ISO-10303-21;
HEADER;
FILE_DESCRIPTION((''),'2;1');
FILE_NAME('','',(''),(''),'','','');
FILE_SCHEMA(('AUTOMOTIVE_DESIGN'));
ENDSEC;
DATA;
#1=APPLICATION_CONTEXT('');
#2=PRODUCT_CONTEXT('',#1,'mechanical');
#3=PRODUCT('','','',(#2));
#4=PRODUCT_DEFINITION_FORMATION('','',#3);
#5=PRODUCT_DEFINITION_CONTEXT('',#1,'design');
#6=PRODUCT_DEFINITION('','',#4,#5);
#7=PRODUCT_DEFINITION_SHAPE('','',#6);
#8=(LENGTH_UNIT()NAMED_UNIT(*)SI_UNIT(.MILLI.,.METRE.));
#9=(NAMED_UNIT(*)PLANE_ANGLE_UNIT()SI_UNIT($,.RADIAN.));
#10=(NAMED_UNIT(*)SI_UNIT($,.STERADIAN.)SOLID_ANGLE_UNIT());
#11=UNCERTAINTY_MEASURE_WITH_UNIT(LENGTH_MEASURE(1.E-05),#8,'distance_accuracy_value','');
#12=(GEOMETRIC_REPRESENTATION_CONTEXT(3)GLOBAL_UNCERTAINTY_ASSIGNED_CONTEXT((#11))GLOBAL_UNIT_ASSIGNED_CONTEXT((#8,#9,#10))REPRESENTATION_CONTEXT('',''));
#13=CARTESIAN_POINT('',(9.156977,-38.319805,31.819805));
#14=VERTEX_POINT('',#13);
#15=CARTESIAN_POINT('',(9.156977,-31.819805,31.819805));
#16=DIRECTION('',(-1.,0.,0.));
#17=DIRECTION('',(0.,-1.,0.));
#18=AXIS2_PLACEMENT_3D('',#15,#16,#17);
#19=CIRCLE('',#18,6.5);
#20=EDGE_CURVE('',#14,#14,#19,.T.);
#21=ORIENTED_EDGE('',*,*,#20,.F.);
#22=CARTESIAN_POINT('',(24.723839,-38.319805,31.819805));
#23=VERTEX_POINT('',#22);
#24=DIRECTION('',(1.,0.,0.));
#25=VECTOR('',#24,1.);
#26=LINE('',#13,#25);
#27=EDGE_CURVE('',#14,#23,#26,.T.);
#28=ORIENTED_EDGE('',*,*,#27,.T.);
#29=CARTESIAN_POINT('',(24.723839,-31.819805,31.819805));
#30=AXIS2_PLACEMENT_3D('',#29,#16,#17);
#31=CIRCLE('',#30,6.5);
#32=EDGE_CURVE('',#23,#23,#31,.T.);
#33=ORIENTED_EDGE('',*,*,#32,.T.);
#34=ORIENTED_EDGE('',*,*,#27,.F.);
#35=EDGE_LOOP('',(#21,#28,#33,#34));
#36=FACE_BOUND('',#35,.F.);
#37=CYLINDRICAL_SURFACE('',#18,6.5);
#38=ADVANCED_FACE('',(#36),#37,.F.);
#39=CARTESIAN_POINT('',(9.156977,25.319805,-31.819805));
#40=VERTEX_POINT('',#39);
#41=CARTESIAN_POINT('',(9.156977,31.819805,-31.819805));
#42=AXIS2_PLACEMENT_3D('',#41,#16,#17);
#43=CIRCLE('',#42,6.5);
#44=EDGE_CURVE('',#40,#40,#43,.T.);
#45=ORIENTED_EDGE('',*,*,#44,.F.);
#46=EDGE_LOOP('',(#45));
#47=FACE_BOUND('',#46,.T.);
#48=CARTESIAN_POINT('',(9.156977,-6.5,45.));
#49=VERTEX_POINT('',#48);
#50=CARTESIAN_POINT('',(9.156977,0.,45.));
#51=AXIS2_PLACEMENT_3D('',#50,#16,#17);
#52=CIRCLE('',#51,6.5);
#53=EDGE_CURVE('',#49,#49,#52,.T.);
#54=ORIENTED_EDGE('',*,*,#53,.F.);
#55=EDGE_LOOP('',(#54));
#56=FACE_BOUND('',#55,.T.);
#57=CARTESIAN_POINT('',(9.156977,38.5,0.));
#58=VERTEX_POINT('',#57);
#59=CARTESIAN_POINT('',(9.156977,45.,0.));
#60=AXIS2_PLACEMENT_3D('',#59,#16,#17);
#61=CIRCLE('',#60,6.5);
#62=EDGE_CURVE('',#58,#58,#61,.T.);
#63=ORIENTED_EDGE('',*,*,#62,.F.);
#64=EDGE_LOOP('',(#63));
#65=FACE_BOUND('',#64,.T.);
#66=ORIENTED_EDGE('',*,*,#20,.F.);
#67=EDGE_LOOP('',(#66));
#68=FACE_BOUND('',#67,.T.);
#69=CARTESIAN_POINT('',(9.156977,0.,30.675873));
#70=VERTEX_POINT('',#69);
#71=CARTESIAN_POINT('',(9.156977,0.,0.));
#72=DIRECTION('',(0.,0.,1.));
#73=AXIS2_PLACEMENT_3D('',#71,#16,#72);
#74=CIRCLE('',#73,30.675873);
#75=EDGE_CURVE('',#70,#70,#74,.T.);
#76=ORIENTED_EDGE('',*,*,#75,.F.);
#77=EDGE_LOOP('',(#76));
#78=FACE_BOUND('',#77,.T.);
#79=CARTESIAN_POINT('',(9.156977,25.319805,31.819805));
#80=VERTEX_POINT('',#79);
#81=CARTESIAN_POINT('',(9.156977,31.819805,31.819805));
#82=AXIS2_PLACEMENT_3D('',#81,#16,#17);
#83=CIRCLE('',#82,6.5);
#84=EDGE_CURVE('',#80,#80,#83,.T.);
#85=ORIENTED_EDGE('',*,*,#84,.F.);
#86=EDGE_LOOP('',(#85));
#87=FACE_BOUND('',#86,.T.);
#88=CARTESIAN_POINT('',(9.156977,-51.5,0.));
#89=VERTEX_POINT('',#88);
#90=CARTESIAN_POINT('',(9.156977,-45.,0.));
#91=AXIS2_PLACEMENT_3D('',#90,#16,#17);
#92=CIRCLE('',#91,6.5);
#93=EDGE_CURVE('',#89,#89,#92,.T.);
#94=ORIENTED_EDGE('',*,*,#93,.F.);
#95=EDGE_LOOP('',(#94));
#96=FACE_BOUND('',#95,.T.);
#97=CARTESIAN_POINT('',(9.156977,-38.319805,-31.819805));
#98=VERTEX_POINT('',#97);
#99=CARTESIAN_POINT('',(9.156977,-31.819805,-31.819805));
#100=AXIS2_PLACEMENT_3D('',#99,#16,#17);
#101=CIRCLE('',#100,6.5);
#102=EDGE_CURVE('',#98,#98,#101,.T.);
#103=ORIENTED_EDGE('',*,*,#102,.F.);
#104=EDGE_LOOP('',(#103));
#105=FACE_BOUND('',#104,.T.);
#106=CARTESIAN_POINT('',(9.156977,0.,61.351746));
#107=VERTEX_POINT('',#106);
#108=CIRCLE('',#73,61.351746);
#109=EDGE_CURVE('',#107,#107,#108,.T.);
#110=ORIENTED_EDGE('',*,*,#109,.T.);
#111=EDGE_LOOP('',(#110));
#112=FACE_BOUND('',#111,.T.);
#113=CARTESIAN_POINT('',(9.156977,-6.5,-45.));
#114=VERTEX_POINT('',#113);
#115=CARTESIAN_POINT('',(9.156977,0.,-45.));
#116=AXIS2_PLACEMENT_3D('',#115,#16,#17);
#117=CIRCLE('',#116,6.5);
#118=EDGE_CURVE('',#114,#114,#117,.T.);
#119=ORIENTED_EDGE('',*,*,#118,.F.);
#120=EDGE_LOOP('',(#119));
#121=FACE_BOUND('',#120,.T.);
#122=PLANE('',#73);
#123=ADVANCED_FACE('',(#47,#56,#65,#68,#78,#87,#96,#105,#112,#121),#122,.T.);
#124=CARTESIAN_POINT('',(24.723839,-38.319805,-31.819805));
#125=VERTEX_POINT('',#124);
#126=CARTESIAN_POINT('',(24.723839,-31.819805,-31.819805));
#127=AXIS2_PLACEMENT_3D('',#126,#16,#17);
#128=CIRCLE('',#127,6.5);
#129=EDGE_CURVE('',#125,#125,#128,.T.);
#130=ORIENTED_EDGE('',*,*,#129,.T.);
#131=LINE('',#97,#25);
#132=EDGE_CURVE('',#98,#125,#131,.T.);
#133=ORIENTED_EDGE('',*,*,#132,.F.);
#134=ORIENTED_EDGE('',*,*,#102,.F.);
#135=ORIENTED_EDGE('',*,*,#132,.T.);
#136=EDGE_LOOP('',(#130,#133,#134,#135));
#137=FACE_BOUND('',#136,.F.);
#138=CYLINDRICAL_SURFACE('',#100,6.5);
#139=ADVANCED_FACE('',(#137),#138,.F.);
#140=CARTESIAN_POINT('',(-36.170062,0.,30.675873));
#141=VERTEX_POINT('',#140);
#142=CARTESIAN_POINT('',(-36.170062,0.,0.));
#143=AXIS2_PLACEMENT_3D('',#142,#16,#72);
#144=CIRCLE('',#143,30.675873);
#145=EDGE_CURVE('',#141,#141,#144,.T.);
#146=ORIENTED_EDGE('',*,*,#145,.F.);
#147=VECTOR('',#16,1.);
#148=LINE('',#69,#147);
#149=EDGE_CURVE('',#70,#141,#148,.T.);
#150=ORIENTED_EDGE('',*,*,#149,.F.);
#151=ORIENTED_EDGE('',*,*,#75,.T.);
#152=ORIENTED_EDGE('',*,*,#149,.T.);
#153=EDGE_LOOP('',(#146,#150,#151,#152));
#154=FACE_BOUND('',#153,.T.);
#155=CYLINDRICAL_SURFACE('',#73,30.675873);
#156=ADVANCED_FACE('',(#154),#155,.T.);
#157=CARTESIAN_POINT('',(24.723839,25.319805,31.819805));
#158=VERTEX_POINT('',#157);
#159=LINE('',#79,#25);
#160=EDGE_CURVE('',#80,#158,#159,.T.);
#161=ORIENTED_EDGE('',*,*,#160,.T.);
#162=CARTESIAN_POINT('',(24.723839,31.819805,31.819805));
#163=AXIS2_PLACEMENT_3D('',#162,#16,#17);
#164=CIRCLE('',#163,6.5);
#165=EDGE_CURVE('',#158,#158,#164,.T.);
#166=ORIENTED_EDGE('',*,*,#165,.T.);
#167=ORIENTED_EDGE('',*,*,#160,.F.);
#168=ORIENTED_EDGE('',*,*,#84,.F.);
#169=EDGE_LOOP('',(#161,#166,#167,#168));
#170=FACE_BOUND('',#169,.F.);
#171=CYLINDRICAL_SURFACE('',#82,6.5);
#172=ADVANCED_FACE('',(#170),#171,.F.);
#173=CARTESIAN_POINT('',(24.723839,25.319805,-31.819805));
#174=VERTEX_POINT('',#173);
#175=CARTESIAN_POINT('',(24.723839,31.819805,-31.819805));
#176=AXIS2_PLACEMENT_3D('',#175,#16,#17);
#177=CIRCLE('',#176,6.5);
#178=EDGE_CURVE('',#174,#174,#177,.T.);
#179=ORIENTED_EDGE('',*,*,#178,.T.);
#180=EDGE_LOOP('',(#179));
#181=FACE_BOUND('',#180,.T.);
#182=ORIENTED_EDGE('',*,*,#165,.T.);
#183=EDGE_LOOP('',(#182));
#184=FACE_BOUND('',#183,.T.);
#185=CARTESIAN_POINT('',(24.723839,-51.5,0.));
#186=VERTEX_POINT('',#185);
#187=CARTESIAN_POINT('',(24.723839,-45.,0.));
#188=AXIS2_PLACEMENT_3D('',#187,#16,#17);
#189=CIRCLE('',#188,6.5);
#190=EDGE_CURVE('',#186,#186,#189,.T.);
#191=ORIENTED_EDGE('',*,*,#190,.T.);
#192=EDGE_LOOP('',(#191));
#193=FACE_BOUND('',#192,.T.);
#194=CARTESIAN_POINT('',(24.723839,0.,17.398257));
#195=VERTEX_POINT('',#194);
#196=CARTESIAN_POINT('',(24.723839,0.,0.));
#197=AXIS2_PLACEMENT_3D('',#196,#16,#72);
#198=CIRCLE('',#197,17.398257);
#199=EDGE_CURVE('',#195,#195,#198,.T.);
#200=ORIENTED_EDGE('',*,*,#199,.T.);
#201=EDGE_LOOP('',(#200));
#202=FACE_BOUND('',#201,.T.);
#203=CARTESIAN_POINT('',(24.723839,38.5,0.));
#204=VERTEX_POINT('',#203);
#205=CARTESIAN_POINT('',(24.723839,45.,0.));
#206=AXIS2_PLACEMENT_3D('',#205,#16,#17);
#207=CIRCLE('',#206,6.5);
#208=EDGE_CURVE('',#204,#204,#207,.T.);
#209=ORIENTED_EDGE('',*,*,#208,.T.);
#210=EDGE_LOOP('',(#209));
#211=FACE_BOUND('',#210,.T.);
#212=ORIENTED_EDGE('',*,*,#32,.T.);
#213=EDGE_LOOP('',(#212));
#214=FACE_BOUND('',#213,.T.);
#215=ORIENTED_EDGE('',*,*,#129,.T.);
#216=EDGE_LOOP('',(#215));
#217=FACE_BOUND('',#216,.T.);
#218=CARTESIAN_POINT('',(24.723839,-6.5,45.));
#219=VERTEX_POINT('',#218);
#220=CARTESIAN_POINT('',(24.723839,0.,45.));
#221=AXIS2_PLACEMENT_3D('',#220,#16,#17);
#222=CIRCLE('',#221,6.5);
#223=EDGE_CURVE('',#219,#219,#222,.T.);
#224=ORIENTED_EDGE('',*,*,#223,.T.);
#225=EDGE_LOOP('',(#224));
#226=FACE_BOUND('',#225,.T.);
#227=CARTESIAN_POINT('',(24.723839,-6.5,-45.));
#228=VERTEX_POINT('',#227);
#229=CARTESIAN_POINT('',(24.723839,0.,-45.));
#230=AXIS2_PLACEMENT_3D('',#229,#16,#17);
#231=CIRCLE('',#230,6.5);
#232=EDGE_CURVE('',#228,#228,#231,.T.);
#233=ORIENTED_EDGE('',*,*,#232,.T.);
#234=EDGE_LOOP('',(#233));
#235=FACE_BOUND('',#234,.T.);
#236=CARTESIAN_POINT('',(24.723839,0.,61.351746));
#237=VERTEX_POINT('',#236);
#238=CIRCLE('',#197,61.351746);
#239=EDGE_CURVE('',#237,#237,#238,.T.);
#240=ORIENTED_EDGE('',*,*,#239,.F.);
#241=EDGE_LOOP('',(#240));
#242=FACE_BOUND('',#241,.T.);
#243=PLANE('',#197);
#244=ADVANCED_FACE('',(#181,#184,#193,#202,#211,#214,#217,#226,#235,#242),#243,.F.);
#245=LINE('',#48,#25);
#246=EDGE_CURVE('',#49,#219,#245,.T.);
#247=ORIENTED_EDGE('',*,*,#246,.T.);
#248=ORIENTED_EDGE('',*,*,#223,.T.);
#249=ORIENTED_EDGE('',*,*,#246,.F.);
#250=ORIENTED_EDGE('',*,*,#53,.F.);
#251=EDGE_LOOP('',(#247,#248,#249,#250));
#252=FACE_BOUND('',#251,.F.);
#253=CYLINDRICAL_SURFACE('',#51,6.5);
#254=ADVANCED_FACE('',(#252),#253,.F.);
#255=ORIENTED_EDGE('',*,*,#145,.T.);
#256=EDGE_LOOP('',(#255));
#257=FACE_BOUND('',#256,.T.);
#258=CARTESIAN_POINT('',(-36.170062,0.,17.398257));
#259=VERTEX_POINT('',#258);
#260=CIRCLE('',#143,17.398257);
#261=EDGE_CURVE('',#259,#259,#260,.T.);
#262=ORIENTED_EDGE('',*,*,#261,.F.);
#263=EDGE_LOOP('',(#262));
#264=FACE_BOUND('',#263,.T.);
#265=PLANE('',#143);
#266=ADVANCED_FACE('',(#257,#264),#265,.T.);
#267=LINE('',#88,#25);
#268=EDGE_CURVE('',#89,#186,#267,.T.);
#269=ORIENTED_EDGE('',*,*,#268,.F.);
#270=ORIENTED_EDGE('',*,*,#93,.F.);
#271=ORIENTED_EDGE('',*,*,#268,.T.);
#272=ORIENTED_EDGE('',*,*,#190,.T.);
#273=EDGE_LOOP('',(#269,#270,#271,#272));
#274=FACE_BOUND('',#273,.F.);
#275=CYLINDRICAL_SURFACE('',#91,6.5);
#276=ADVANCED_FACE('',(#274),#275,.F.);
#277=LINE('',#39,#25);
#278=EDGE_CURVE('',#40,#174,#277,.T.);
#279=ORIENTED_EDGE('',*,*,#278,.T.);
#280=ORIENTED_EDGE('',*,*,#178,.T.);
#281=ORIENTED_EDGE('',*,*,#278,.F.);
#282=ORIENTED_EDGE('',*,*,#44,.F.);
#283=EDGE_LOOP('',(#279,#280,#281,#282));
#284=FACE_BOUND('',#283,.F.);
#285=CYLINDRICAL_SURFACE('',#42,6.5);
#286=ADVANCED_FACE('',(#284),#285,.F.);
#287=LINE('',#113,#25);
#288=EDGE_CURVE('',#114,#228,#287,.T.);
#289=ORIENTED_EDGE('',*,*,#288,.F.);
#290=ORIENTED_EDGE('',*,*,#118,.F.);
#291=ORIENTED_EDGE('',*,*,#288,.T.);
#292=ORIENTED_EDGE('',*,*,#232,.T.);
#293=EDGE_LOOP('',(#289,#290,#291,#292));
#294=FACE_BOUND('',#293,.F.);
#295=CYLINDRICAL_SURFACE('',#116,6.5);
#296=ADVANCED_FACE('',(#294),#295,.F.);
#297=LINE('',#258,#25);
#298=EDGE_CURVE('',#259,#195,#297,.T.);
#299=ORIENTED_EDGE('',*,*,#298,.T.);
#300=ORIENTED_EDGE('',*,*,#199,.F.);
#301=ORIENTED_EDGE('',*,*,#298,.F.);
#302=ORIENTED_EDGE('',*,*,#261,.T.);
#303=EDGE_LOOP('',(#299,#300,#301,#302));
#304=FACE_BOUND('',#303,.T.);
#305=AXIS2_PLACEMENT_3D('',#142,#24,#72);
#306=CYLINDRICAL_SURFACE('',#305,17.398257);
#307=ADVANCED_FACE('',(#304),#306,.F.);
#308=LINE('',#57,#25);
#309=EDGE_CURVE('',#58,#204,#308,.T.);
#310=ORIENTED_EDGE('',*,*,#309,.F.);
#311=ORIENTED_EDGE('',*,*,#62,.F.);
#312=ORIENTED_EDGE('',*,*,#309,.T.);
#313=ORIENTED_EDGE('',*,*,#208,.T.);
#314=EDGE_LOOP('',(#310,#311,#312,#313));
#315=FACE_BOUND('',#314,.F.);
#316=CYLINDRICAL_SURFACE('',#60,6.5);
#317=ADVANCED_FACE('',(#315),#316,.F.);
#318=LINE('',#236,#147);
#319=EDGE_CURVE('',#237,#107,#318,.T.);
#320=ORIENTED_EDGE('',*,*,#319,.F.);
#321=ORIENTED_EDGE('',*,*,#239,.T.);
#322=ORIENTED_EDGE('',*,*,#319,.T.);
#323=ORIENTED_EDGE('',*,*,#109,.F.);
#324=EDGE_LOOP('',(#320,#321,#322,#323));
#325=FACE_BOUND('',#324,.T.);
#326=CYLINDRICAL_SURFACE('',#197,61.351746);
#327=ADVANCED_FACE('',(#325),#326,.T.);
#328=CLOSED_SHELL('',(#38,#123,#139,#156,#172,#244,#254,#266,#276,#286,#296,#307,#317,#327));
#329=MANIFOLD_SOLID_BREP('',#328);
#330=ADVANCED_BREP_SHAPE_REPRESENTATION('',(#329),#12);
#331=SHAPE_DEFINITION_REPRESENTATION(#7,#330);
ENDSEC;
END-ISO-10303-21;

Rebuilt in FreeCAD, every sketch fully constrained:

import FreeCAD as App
import Part
import Sketcher
Q = App.Units.Quantity

doc = App.newDocument("Part")
body = doc.addObject("PartDesign::Body", "Body")

sketch1 = body.newObject("Sketcher::SketchObject", "Sketch")
sketch1.AttachmentSupport = (doc.getObject("XZ_Plane"), [""])
sketch1.MapMode = "FlatFace"
sketch1.addGeometry(Part.LineSegment(App.Vector(-36, 17, 0), App.Vector(25, 17, 0)), False)
sketch1.addGeometry(Part.LineSegment(App.Vector(25, 17, 0), App.Vector(25, 61, 0)), False)
sketch1.addGeometry(Part.LineSegment(App.Vector(25, 61, 0), App.Vector(9, 61, 0)), False)
sketch1.addGeometry(Part.LineSegment(App.Vector(9, 61, 0), App.Vector(9, 31, 0)), False)
sketch1.addGeometry(Part.LineSegment(App.Vector(9, 31, 0), App.Vector(-36, 31, 0)), False)
sketch1.addGeometry(Part.LineSegment(App.Vector(-36, 31, 0), App.Vector(-36, 17, 0)), False)
sketch1.addConstraint(Sketcher.Constraint("Coincident", 0, 2, 1, 1))
sketch1.addConstraint(Sketcher.Constraint("Coincident", 1, 2, 2, 1))
sketch1.addConstraint(Sketcher.Constraint("Coincident", 2, 2, 3, 1))
sketch1.addConstraint(Sketcher.Constraint("Coincident", 3, 2, 4, 1))
sketch1.addConstraint(Sketcher.Constraint("Coincident", 4, 2, 5, 1))
sketch1.addConstraint(Sketcher.Constraint("Coincident", 5, 2, 0, 1))
sketch1.addConstraint(Sketcher.Constraint("Horizontal", 0))
sketch1.addConstraint(Sketcher.Constraint("Vertical", 1))
sketch1.addConstraint(Sketcher.Constraint("Horizontal", 2))
sketch1.addConstraint(Sketcher.Constraint("Vertical", 3))
sketch1.addConstraint(Sketcher.Constraint("Horizontal", 4))
sketch1.addConstraint(Sketcher.Constraint("Vertical", 5))
sketch1.addConstraint(Sketcher.Constraint("DistanceX", 0, 1, 0, 2, Q("60.893901 mm")))
sketch1.addConstraint(Sketcher.Constraint("DistanceX", 4, 2, 4, 1, Q("45.327039 mm")))
sketch1.addConstraint(Sketcher.Constraint("DistanceY", 1, 1, 1, 2, Q("43.953489 mm")))
sketch1.addConstraint(Sketcher.Constraint("DistanceY", 3, 2, 3, 1, Q("30.675873 mm")))
sketch1.addConstraint(Sketcher.Constraint("DistanceX", -1, 1, 0, 2, Q("24.723839 mm")))
sketch1.addConstraint(Sketcher.Constraint("DistanceY", -1, 1, 0, 2, Q("17.398257 mm")))
revolution = body.newObject("PartDesign::Revolution", "Revolution")
revolution.Profile = sketch1
revolution.ReferenceAxis = (sketch1, ["H_Axis"])
revolution.Angle = 360

sketch2 = body.newObject("Sketcher::SketchObject", "Sketch001")
sketch2.AttachmentSupport = (doc.getObject("YZ_Plane"), [""])
sketch2.MapMode = "FlatFace"
sketch2.AttachmentOffset = App.Placement(App.Vector(0, 0, 9.156977), App.Rotation())
sketch2.addGeometry(Part.Circle(App.Vector(0, 45, 0), App.Vector(0, 0, 1), 6), False)
sketch2.addGeometry(Part.Circle(App.Vector(32, 32, 0), App.Vector(0, 0, 1), 6), False)
sketch2.addGeometry(Part.Circle(App.Vector(45, 0, 0), App.Vector(0, 0, 1), 6), False)
sketch2.addGeometry(Part.Circle(App.Vector(32, -32, 0), App.Vector(0, 0, 1), 6), False)
sketch2.addGeometry(Part.Circle(App.Vector(0, -45, 0), App.Vector(0, 0, 1), 6), False)
sketch2.addGeometry(Part.Circle(App.Vector(-32, -32, 0), App.Vector(0, 0, 1), 6), False)
sketch2.addGeometry(Part.Circle(App.Vector(-45, 0, 0), App.Vector(0, 0, 1), 6), False)
sketch2.addGeometry(Part.Circle(App.Vector(-32, 32, 0), App.Vector(0, 0, 1), 6), False)
sketch2.addConstraint(Sketcher.Constraint("Equal", 0, 1))
sketch2.addConstraint(Sketcher.Constraint("Equal", 1, 2))
sketch2.addConstraint(Sketcher.Constraint("Equal", 2, 3))
sketch2.addConstraint(Sketcher.Constraint("Equal", 3, 4))
sketch2.addConstraint(Sketcher.Constraint("Equal", 4, 5))
sketch2.addConstraint(Sketcher.Constraint("Equal", 5, 6))
sketch2.addConstraint(Sketcher.Constraint("Equal", 6, 7))
sketch2.addConstraint(Sketcher.Constraint("Symmetric", 0, 3, 4, 3, -1, 1))
sketch2.addConstraint(Sketcher.Constraint("Symmetric", 1, 3, 5, 3, -1, 1))
sketch2.addConstraint(Sketcher.Constraint("Symmetric", 2, 3, 6, 3, -1, 1))
sketch2.addConstraint(Sketcher.Constraint("Symmetric", 3, 3, 7, 3, -1, 1))
sketch2.addConstraint(Sketcher.Constraint("Symmetric", 3, 3, 5, 3, -2))
sketch2.addConstraint(Sketcher.Constraint("PointOnObject", 0, 3, -2))
sketch2.addConstraint(Sketcher.Constraint("PointOnObject", 2, 3, -1))
sketch2.addConstraint(Sketcher.Constraint("Diameter", 0, Q("13 mm")))
sketch2.addConstraint(Sketcher.Constraint("DistanceY", -1, 1, 0, 3, Q("45 mm")))
sketch2.addConstraint(Sketcher.Constraint("DistanceX", -1, 1, 2, 3, Q("45 mm")))
sketch2.addConstraint(Sketcher.Constraint("DistanceY", 3, 3, 1, 3, Q("63.63961 mm")))
sketch2.addConstraint(Sketcher.Constraint("DistanceX", 5, 3, 3, 3, Q("63.63961 mm")))
pocket1 = body.newObject("PartDesign::Pocket", "Pocket")
pocket1.Profile = sketch2
pocket1.Type = "ThroughAll"
pocket1.Reversed = True

doc.recompute()
